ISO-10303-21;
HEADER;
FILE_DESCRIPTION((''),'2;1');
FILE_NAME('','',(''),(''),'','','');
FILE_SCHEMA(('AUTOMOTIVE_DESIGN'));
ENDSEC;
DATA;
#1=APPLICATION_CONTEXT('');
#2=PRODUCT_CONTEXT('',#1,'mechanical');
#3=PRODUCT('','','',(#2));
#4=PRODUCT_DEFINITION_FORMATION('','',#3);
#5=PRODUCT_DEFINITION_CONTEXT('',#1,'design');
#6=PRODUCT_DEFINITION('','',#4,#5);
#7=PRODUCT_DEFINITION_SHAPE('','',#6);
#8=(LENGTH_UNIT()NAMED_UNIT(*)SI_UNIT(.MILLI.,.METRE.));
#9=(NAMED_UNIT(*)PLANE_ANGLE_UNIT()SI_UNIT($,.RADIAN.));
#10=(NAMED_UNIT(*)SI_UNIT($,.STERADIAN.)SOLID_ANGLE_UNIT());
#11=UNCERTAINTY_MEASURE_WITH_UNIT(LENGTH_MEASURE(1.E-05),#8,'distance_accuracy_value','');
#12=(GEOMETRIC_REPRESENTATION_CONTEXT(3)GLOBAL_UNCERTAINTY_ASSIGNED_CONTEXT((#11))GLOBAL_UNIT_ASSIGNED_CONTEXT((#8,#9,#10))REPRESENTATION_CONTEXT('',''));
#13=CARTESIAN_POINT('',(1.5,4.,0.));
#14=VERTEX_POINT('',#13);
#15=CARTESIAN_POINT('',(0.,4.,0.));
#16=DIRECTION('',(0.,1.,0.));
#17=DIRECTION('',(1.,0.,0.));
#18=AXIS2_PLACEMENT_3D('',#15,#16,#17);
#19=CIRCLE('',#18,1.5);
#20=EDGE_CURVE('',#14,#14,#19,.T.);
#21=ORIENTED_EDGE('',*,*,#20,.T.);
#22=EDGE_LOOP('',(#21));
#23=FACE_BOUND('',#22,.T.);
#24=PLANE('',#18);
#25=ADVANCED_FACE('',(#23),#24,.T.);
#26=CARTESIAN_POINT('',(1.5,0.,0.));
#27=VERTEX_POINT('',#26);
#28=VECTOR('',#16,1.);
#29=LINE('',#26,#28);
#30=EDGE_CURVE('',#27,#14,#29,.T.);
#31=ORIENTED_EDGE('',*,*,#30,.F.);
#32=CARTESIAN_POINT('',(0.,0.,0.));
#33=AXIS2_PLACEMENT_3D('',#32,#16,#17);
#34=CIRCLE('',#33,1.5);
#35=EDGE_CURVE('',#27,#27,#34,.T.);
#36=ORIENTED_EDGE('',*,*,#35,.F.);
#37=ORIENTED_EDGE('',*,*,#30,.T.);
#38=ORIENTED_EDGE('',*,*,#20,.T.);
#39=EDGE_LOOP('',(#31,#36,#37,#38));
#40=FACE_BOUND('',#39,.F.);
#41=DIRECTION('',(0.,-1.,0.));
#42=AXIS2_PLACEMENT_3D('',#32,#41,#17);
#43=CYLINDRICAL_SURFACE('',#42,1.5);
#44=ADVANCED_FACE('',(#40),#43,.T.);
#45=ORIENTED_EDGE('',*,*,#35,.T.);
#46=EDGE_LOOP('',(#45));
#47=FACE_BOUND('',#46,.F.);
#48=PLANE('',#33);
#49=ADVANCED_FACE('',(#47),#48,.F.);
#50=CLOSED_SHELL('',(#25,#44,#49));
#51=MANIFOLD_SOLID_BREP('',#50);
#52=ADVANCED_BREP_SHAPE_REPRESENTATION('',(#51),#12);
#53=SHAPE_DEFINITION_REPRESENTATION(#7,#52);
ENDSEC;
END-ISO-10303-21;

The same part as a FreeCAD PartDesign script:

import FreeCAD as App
import Part
import Sketcher

V = App.Vector

doc = App.newDocument("Part")
body = doc.addObject("PartDesign::Body", "Body")

# Sketch on XZ plane
sketch1 = doc.addObject("Sketcher::SketchObject", "Sketch")
body.addObject(sketch1)
sketch1.AttachmentSupport = (doc.XZ_Plane, [""])
sketch1.MapMode = "FlatFace"
sketch1.addGeometry(Part.Circle(V(0, 0, 0), V(0, 0, 1), 1.5), False)
sketch1.addConstraint([
    Sketcher.Constraint("Coincident", 0, 3, -1, 1),
    Sketcher.Constraint("Diameter", 0, 3.0),
])
pad1 = doc.addObject("PartDesign::Pad", "Pad")
body.addObject(pad1)
pad1.Profile = sketch1
pad1.Length = 4
pad1.Reversed = True

doc.recompute()
